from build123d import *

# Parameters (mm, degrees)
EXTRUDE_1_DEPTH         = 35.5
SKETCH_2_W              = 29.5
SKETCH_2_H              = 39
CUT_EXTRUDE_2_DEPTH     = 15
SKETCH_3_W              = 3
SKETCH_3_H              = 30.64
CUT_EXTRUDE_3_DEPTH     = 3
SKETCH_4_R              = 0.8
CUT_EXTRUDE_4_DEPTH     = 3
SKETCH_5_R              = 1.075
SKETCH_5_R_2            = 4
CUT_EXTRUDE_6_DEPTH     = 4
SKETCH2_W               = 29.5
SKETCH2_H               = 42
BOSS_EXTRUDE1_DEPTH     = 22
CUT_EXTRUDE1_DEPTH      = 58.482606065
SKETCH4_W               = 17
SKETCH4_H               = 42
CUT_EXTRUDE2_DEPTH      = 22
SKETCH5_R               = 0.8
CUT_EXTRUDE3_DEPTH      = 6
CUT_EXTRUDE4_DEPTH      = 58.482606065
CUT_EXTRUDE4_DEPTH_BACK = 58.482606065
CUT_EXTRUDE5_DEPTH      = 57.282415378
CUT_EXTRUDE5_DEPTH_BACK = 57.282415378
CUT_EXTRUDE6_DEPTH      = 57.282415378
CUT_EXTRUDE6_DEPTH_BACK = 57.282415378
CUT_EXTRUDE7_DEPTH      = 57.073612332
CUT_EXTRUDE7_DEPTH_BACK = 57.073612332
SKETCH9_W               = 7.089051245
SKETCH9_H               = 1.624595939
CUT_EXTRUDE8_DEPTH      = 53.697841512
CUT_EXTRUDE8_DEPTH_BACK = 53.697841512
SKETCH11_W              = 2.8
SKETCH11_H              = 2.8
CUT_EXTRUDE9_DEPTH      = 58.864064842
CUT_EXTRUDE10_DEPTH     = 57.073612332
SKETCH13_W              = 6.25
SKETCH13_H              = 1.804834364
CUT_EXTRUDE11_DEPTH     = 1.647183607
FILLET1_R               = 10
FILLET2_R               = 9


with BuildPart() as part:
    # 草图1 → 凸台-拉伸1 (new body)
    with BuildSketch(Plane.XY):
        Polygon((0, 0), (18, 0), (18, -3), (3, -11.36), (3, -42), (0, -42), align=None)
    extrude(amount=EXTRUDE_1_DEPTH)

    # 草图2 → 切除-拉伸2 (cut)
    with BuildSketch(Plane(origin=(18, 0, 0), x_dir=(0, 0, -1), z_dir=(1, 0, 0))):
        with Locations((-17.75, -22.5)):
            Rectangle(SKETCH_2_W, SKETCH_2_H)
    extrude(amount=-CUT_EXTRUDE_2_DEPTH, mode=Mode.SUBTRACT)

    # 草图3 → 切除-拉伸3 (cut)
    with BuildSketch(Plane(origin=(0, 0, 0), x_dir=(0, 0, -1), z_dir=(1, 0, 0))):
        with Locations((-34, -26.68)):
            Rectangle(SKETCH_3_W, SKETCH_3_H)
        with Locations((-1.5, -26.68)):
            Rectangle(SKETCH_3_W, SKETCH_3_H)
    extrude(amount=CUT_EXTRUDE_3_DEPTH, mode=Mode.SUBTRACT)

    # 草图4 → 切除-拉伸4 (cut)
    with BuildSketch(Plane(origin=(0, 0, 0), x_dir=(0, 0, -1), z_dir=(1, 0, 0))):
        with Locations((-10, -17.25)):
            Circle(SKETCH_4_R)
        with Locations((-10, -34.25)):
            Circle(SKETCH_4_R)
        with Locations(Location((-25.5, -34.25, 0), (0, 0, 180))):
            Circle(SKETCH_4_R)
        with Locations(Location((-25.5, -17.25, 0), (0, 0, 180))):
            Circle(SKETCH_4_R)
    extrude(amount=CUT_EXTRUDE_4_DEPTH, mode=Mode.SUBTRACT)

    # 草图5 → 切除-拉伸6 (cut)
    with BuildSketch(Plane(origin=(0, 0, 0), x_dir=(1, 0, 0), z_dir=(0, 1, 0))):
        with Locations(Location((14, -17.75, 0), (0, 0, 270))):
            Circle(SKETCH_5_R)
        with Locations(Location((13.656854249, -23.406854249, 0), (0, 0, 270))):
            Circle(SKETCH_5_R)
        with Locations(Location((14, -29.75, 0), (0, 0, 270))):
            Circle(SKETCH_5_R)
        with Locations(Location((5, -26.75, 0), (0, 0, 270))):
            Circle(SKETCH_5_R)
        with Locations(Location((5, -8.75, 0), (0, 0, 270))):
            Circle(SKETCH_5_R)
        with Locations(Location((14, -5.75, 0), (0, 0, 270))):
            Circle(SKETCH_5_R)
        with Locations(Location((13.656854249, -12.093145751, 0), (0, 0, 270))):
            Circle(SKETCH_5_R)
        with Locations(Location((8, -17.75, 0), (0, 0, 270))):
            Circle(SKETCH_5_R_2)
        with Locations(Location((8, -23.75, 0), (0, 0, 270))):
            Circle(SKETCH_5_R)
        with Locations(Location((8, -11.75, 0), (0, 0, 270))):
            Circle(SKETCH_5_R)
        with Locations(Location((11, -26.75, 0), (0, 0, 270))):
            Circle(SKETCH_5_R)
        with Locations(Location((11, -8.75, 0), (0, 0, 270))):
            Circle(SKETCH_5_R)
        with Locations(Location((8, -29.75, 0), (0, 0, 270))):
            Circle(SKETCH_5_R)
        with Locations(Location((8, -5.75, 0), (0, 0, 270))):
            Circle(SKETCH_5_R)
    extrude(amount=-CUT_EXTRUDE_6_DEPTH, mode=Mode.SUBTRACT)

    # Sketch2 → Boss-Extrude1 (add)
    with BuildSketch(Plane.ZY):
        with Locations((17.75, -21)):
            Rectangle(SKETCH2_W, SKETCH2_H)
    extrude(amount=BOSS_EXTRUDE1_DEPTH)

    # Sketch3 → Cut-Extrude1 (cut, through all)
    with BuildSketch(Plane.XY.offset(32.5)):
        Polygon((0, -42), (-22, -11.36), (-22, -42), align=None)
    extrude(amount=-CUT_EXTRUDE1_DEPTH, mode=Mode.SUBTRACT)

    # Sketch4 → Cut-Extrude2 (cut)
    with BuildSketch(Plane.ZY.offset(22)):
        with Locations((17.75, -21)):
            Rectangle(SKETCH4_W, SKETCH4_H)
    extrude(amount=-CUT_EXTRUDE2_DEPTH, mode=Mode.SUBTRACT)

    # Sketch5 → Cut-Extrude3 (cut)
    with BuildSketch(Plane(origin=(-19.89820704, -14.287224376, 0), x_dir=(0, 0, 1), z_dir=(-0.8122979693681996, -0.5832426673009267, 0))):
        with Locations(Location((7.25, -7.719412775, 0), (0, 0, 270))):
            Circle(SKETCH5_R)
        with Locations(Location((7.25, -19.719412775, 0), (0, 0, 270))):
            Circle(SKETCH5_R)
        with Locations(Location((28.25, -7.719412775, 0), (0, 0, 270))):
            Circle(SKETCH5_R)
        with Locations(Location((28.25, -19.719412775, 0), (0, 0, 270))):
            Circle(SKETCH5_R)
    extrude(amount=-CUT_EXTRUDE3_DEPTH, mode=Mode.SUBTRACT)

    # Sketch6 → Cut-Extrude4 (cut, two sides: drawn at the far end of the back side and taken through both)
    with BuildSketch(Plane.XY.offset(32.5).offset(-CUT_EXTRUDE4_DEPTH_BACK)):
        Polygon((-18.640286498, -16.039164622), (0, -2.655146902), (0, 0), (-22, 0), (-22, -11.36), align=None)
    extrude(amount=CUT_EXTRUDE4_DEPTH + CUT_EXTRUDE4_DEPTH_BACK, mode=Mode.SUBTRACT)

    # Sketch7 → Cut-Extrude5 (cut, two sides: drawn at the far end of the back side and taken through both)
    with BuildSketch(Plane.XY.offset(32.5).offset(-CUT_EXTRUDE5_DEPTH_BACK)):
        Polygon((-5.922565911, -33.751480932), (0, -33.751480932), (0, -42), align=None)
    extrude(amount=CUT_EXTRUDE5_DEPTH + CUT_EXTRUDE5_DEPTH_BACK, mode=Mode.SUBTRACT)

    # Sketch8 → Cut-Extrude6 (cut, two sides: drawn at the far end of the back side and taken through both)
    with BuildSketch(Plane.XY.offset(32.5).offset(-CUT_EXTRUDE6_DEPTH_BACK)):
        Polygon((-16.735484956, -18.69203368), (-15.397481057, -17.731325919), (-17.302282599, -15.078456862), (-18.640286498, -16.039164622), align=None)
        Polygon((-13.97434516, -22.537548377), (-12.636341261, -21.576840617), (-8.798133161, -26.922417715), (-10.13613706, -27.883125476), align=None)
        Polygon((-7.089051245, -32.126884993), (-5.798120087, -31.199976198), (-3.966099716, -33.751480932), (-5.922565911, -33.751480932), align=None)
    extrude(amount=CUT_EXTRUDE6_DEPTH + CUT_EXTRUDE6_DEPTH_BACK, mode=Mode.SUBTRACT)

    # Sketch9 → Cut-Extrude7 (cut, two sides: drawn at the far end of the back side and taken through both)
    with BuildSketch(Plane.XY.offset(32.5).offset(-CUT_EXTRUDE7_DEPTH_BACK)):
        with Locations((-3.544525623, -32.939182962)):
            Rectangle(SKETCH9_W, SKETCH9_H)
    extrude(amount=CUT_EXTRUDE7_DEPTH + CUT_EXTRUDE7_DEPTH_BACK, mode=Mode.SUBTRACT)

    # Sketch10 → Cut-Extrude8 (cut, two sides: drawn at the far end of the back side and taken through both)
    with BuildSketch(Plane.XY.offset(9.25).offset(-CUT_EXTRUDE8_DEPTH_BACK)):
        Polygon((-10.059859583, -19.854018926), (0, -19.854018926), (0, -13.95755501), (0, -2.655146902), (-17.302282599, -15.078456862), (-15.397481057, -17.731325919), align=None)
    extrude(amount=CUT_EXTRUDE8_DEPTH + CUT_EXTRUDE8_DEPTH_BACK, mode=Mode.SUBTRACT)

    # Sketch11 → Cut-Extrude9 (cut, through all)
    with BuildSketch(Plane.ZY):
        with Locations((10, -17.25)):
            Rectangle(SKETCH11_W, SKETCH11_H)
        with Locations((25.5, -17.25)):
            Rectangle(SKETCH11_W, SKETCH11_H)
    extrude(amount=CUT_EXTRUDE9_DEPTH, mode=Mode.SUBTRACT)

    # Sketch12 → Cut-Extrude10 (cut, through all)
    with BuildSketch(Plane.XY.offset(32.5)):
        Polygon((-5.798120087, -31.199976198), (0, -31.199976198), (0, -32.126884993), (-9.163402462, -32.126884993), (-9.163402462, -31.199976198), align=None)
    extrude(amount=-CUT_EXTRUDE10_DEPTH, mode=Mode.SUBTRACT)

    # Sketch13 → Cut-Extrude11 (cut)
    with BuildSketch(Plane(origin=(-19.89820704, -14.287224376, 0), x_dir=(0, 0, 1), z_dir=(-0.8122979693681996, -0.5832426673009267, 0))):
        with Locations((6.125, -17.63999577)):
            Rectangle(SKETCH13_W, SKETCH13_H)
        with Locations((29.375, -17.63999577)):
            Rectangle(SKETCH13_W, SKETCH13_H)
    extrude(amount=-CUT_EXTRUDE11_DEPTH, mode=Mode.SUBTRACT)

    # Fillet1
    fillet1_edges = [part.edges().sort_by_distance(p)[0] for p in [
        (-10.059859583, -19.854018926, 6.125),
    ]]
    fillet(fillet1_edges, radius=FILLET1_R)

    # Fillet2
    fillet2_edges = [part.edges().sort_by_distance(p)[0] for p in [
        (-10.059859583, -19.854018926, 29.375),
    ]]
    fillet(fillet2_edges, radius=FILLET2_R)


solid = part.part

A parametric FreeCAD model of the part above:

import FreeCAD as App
import Part
import Sketcher
from FreeCAD import Vector
Q = App.Units.Quantity


def edges_at(feature, points):
    """Names of the edges that pass closest to the given points."""
    edges = feature.Shape.Edges
    near = lambda p: min(range(len(edges)), key=lambda i: edges[i].distToShape(Part.Vertex(*p))[0])
    return sorted({f"Edge{near(p) + 1}" for p in points})


def add_polygon(sketch, points):
    """Adds a closed chain of lines whose ends are joined by coincident constraints."""
    first, n = sketch.GeometryCount, len(points)
    for a, b in zip(points, points[1:] + points[:1]):
        sketch.addGeometry(Part.LineSegment(App.Vector(*a, 0), App.Vector(*b, 0)), False)
    for i in range(n):
        sketch.addConstraint(Sketcher.Constraint("Coincident", first + i, 2, first + (i + 1) % n, 1))

doc = App.newDocument("Part")
body = doc.addObject("PartDesign::Body", "Body")

# Sketch on XY plane
sketch1 = body.newObject("Sketcher::SketchObject", "Sketch")
sketch1.AttachmentSupport = (doc.getObject("XY_Plane"), [""])
sketch1.MapMode = "FlatFace"
add_polygon(sketch1, [(18, 0), (0, 0), (0, -42), (3, -42), (3, -11.4), (18, -3)])  # lines 0-5
sketch1.addConstraint([
    Sketcher.Constraint("Horizontal", 0),
    Sketcher.Constraint("Vertical", 1),
    Sketcher.Constraint("Horizontal", 2),
    Sketcher.Constraint("Vertical", 3),
    Sketcher.Constraint("Vertical", 5),
    Sketcher.Constraint("Coincident", 0, 2, -1, 1),
    Sketcher.Constraint("Equal", 2, 5),
    Sketcher.Constraint("DistanceX", 0, 2, 0, 1, Q("18 mm")),
    Sketcher.Constraint("DistanceX", 2, 1, 2, 2, Q("3 mm")),
    Sketcher.Constraint("DistanceY", 1, 2, 1, 1, Q("42 mm")),
    Sketcher.Constraint("DistanceY", 3, 1, 3, 2, Q("30.64 mm")),
])
pad1 = body.newObject("PartDesign::Pad", "Pad")
pad1.Profile = sketch1
pad1.Length = 35.5

# Sketch on YZ plane
sketch2 = body.newObject("Sketcher::SketchObject", "Sketch001")
sketch2.AttachmentSupport = (doc.getObject("YZ_Plane"), [""])
sketch2.MapMode = "FlatFace"
sketch2.AttachmentOffset = App.Placement(Vector(0, 0, 18), App.Rotation())
add_polygon(sketch2, [(-3, 32), (-42, 32), (-42, 3), (-3, 3)])  # lines 0-3
sketch2.addConstraint([
    Sketcher.Constraint("Horizontal", 0),
    Sketcher.Constraint("Vertical", 1),
    Sketcher.Constraint("Horizontal", 2),
    Sketcher.Constraint("Vertical", 3),
    Sketcher.Constraint("DistanceX", 0, 2, 0, 1, Q("39 mm")),
    Sketcher.Constraint("DistanceY", 1, 2, 1, 1, Q("29.5 mm")),
    Sketcher.Constraint("DistanceX", 0, 2, -1, 1, Q("42 mm")),
    Sketcher.Constraint("DistanceY", -1, 1, 1, 2, Q("3 mm")),
])
pocket1 = body.newObject("PartDesign::Pocket", "Pocket")
pocket1.Profile = sketch2
pocket1.Length = 15

# Sketch on YZ plane
sketch3 = body.newObject("Sketcher::SketchObject", "Sketch002")
sketch3.AttachmentSupport = (doc.getObject("YZ_Plane"), [""])
sketch3.MapMode = "FlatFace"
add_polygon(sketch3, [(-11.4, 35.5), (-42, 35.5), (-42, 32.5), (-11.4, 32.5)])  # lines 0-3
add_polygon(sketch3, [(-11.4, 3), (-42, 3), (-42, 0), (-11.4, 0)])  # lines 4-7
sketch3.addConstraint([
    Sketcher.Constraint("Horizontal", 0),
    Sketcher.Constraint("Vertical", 1),
    Sketcher.Constraint("Horizontal", 2),
    Sketcher.Constraint("Vertical", 3),
    Sketcher.Constraint("Horizontal", 4),
    Sketcher.Constraint("Vertical", 5),
    Sketcher.Constraint("Horizontal", 6),
    Sketcher.Constraint("Vertical", 7),
    Sketcher.Constraint("PointOnObject", 5, 2, -1),
    Sketcher.Constraint("Vertical", 1, 2, 4, 2),
    Sketcher.Constraint("Vertical", 3, 2, 6, 2),
    Sketcher.Constraint("Equal", 3, 5),
    Sketcher.Constraint("DistanceY", 1, 2, 1, 1, Q("3 mm")),
    Sketcher.Constraint("DistanceX", 0, 2, -1, 1, Q("42 mm")),
    Sketcher.Constraint("DistanceX", 0, 2, 0, 1, Q("30.64 mm")),
    Sketcher.Constraint("DistanceY", -1, 1, 0, 2, Q("35.5 mm")),
])
pocket2 = body.newObject("PartDesign::Pocket", "Pocket001")
pocket2.Profile = sketch3
pocket2.Length = 3
pocket2.Reversed = True

# Sketch on YZ plane
sketch4 = body.newObject("Sketcher::SketchObject", "Sketch003")
sketch4.AttachmentSupport = (doc.getObject("YZ_Plane"), [""])
sketch4.MapMode = "FlatFace"
sketch4.addGeometry([
    Part.Circle(Vector(-17.2, 10, 0), Vector(0, 0, 1), 0.8),
    Part.Circle(Vector(-34.2, 10, 0), Vector(0, 0, 1), 0.8),
    Part.Circle(Vector(-34.2, 25.5, 0), Vector(0, 0, 1), 0.8),
    Part.Circle(Vector(-17.2, 25.5, 0), Vector(0, 0, 1), 0.8),
], False)
sketch4.addConstraint([
    Sketcher.Constraint("Equal", 0, 1),
    Sketcher.Constraint("Equal", 1, 2),
    Sketcher.Constraint("Equal", 2, 3),
    Sketcher.Constraint("Horizontal", 0, 3, 1, 3),
    Sketcher.Constraint("Horizontal", 2, 3, 3, 3),
    Sketcher.Constraint("Vertical", 1, 3, 2, 3),
    Sketcher.Constraint("Vertical", 0, 3, 3, 3),
    Sketcher.Constraint("Diameter", 0, Q("1.6 mm")),
    Sketcher.Constraint("DistanceY", -1, 1, 0, 3, Q("10 mm")),
    Sketcher.Constraint("DistanceX", 1, 3, 0, 3, Q("17 mm")),
    Sketcher.Constraint("DistanceY", -1, 1, 2, 3, Q("25.5 mm")),
    Sketcher.Constraint("DistanceX", 0, 3, -1, 1, Q("17.25 mm")),
])
pocket3 = body.newObject("PartDesign::Pocket", "Pocket002")
pocket3.Profile = sketch4
pocket3.Length = 3
pocket3.Reversed = True

# Sketch on XZ plane
sketch5 = body.newObject("Sketcher::SketchObject", "Sketch004")
sketch5.AttachmentSupport = (doc.getObject("XZ_Plane"), [""])
sketch5.MapMode = "FlatFace"
sketch5.addGeometry([
    Part.Circle(Vector(14, 17.8, 0), Vector(0, 0, 1), 1.1),  # 0
    Part.Circle(Vector(13.7, 23.4, 0), Vector(0, 0, 1), 1.1),  # 1
    Part.Circle(Vector(14, 29.8, 0), Vector(0, 0, 1), 1.1),  # 2
    Part.Circle(Vector(5, 26.8, 0), Vector(0, 0, 1), 1.1),  # 3
    Part.Circle(Vector(5, 8.8, 0), Vector(0, 0, 1), 1.1),  # 4
    Part.Circle(Vector(14, 5.8, 0), Vector(0, 0, 1), 1.1),  # 5
    Part.Circle(Vector(13.7, 12.1, 0), Vector(0, 0, 1), 1.1),  # 6
    Part.Circle(Vector(8, 17.8, 0), Vector(0, 0, 1), 4),  # 7
    Part.Circle(Vector(8, 23.8, 0), Vector(0, 0, 1), 1.1),  # 8
    Part.Circle(Vector(8, 11.8, 0), Vector(0, 0, 1), 1.1),  # 9
    Part.Circle(Vector(11, 26.8, 0), Vector(0, 0, 1), 1.1),  # 10
    Part.Circle(Vector(11, 8.8, 0), Vector(0, 0, 1), 1.1),  # 11
    Part.Circle(Vector(8, 29.8, 0), Vector(0, 0, 1), 1.1),  # 12
    Part.Circle(Vector(8, 5.8, 0), Vector(0, 0, 1), 1.1),  # 13
], False)
sketch5.addConstraint([
    Sketcher.Constraint("Equal", 0, 1),
    Sketcher.Constraint("Equal", 1, 2),
    Sketcher.Constraint("Equal", 2, 3),
    Sketcher.Constraint("Equal", 3, 4),
    Sketcher.Constraint("Equal", 4, 5),
    Sketcher.Constraint("Equal", 5, 6),
    Sketcher.Constraint("Equal", 6, 8),
    Sketcher.Constraint("Equal", 8, 9),
    Sketcher.Constraint("Equal", 9, 10),
    Sketcher.Constraint("Equal", 10, 11),
    Sketcher.Constraint("Equal", 11, 12),
    Sketcher.Constraint("Equal", 12, 13),
    Sketcher.Constraint("Horizontal", 0, 3, 7, 3),
    Sketcher.Constraint("Horizontal", 3, 3, 10, 3),
    Sketcher.Constraint("Horizontal", 4, 3, 11, 3),
    Sketcher.Constraint("Horizontal", 2, 3, 12, 3),
    Sketcher.Constraint("Horizontal", 5, 3, 13, 3),
    Sketcher.Constraint("Vertical", 0, 3, 2, 3),
    Sketcher.Constraint("Vertical", 3, 3, 4, 3),
    Sketcher.Constraint("Vertical", 2, 3, 5, 3),
    Sketcher.Constraint("Vertical", 1, 3, 6, 3),
    Sketcher.Constraint("Vertical", 7, 3, 8, 3),
    Sketcher.Constraint("Vertical", 8, 3, 9, 3),
    Sketcher.Constraint("Vertical", 10, 3, 11, 3),
    Sketcher.Constraint("Vertical", 9, 3, 12, 3),
    Sketcher.Constraint("Vertical", 12, 3, 13, 3),
    Sketcher.Constraint("Diameter", 7, Q("8 mm")),
    Sketcher.Constraint("Diameter", 0, Q("2.15 mm")),
    Sketcher.Constraint("DistanceX", -1, 1, 0, 3, Q("14 mm")),
    Sketcher.Constraint("DistanceX", -1, 1, 3, 3, Q("5 mm")),
    Sketcher.Constraint("DistanceX", -1, 1, 7, 3, Q("8 mm")),
    Sketcher.Constraint("DistanceX", -1, 1, 10, 3, Q("11 mm")),
    Sketcher.Constraint("DistanceY", 0, 3, 2, 3, Q("12 mm")),
    Sketcher.Constraint("DistanceY", 3, 3, 2, 3, Q("3 mm")),
    Sketcher.Constraint("DistanceY", 4, 3, 0, 3, Q("9 mm")),
    Sketcher.Constraint("DistanceY", 5, 3, 4, 3, Q("3 mm")),
    Sketcher.Constraint("DistanceY", 8, 3, 3, 3, Q("3 mm")),
    Sketcher.Constraint("DistanceY", 4, 3, 9, 3, Q("3 mm")),
    Sketcher.Constraint("DistanceY", -1, 1, 0, 3, Q("17.75 mm")),
    Sketcher.Constraint("DistanceY", 6, 3, 1, 3, Q("11.313708 mm")),
    Sketcher.Constraint("DistanceX", -1, 1, 1, 3, Q("13.656854 mm")),
    Sketcher.Constraint("DistanceY", -1, 1, 1, 3, Q("23.406854 mm")),
])
pocket4 = body.newObject("PartDesign::Pocket", "Pocket003")
pocket4.Profile = sketch5
pocket4.Length = 4
pocket4.Reversed = True

# Sketch on YZ plane
sketch6 = body.newObject("Sketcher::SketchObject", "Sketch005")
sketch6.AttachmentSupport = (doc.getObject("YZ_Plane"), [""])
sketch6.MapMode = "FlatFace"
add_polygon(sketch6, [(0, 3), (-42, 3), (-42, 32), (0, 32)])  # lines 0-3
sketch6.addConstraint([
    Sketcher.Constraint("Horizontal", 0),
    Sketcher.Constraint("Vertical", 1),
    Sketcher.Constraint("Horizontal", 2),
    Sketcher.Constraint("Vertical", 3),
    Sketcher.Constraint("PointOnObject", 2, 2, -2),
    Sketcher.Constraint("DistanceX", 0, 2, 0, 1, Q("42 mm")),
    Sketcher.Constraint("DistanceY", 1, 1, 1, 2, Q("29.5 mm")),
    Sketcher.Constraint("DistanceY", -1, 1, 0, 2, Q("3 mm")),
])
pad2 = body.newObject("PartDesign::Pad", "Pad001")
pad2.Profile = sketch6
pad2.Length = 22
pad2.Reversed = True

# Sketch on XY plane
sketch7 = body.newObject("Sketcher::SketchObject", "Sketch006")
sketch7.AttachmentSupport = (doc.getObject("XY_Plane"), [""])
sketch7.MapMode = "FlatFace"
sketch7.AttachmentOffset = App.Placement(Vector(0, 0, 32.5), App.Rotation())
add_polygon(sketch7, [(0, -42), (-22, -11), (-22, -42)])  # lines 0-2
sketch7.addConstraint([
    Sketcher.Constraint("Vertical", 1),
    Sketcher.Constraint("Horizontal", 2),
    Sketcher.Constraint("PointOnObject", 2, 2, -2),
    Sketcher.Constraint("DistanceX", 2, 1, 2, 2, Q("22 mm")),
    Sketcher.Constraint("DistanceY", 1, 2, -1, 1, Q("42 mm")),
    Sketcher.Constraint("DistanceY", 1, 2, 1, 1, Q("30.64 mm")),
])
pocket5 = body.newObject("PartDesign::Pocket", "Pocket004")
pocket5.Profile = sketch7
pocket5.Type = "ThroughAll"

# Sketch on YZ plane
sketch8 = body.newObject("Sketcher::SketchObject", "Sketch007")
sketch8.AttachmentSupport = (doc.getObject("YZ_Plane"), [""])
sketch8.MapMode = "FlatFace"
sketch8.AttachmentOffset = App.Placement(Vector(0, 0, -22), App.Rotation())
add_polygon(sketch8, [(0, 9), (-42, 9), (-42, 26), (0, 26)])  # lines 0-3
sketch8.addConstraint([
    Sketcher.Constraint("Horizontal", 0),
    Sketcher.Constraint("Vertical", 1),
    Sketcher.Constraint("Horizontal", 2),
    Sketcher.Constraint("Vertical", 3),
    Sketcher.Constraint("PointOnObject", 2, 2, -2),
    Sketcher.Constraint("DistanceX", 0, 2, 0, 1, Q("42 mm")),
    Sketcher.Constraint("DistanceY", 1, 1, 1, 2, Q("17 mm")),
    Sketcher.Constraint("DistanceY", -1, 1, 0, 2, Q("9.25 mm")),
])
pocket6 = body.newObject("PartDesign::Pocket", "Pocket005")
pocket6.Profile = sketch8
pocket6.Length = 22
pocket6.Reversed = True

# Sketch on an angled plane
sketch9 = body.newObject("Sketcher::SketchObject", "Sketch008")
sketch9.Placement = App.Placement(Vector(-19.898207, -14.287224, 0), App.Rotation(Vector(0, 0, 1), Vector(-0.583242667, 0.812297969, 0), Vector(-0.812297969, -0.583242667, 0), "ZXY"))
sketch9.addGeometry([
    Part.Circle(Vector(7.2, -7.7, 0), Vector(0, 0, 1), 0.8),
    Part.Circle(Vector(7.2, -19.7, 0), Vector(0, 0, 1), 0.8),
    Part.Circle(Vector(28.2, -7.7, 0), Vector(0, 0, 1), 0.8),
    Part.Circle(Vector(28.2, -19.7, 0), Vector(0, 0, 1), 0.8),
], False)
sketch9.addConstraint([
    Sketcher.Constraint("Equal", 0, 1),
    Sketcher.Constraint("Equal", 1, 2),
    Sketcher.Constraint("Equal", 2, 3),
    Sketcher.Constraint("Horizontal", 0, 3, 2, 3),
    Sketcher.Constraint("Horizontal", 1, 3, 3, 3),
    Sketcher.Constraint("Vertical", 0, 3, 1, 3),
    Sketcher.Constraint("Vertical", 2, 3, 3, 3),
    Sketcher.Constraint("Diameter", 0, Q("1.6 mm")),
    Sketcher.Constraint("DistanceY", 1, 3, 0, 3, Q("12 mm")),
    Sketcher.Constraint("DistanceX", 0, 3, 2, 3, Q("21 mm")),
    Sketcher.Constraint("DistanceX", -1, 1, 0, 3, Q("7.25 mm")),
    Sketcher.Constraint("DistanceY", 0, 3, -1, 1, Q("7.719413 mm")),
])
pocket7 = body.newObject("PartDesign::Pocket", "Pocket006")
pocket7.Profile = sketch9
pocket7.Length = 6

# Sketch on XY plane
sketch10 = body.newObject("Sketcher::SketchObject", "Sketch009")
sketch10.AttachmentSupport = (doc.getObject("XY_Plane"), [""])
sketch10.MapMode = "FlatFace"
sketch10.AttachmentOffset = App.Placement(Vector(0, 0, 32.5), App.Rotation())
add_polygon(sketch10, [(-18.6, -16), (0, -2.7), (0, 0), (-22, 0), (-22, -11.4)])  # lines 0-4
sketch10.addConstraint([
    Sketcher.Constraint("Vertical", 1),
    Sketcher.Constraint("Horizontal", 2),
    Sketcher.Constraint("Vertical", 3),
    Sketcher.Constraint("Coincident", 1, 2, -1, 1),
    Sketcher.Constraint("Perpendicular", 0, 4),
    Sketcher.Constraint("DistanceX", 2, 2, 2, 1, Q("22 mm")),
    Sketcher.Constraint("DistanceY", 3, 2, 3, 1, Q("11.36 mm")),
    Sketcher.Constraint("DistanceY", 1, 1, 1, 2, Q("2.655147 mm")),
    Sketcher.Constraint("Distance", 0, Q("22.947597 mm")),
])
pocket8 = body.newObject("PartDesign::Pocket", "Pocket007")
pocket8.Profile = sketch10
pocket8.Type = "ThroughAll"
pocket8.Midplane = True

# Sketch on XY plane
sketch11 = body.newObject("Sketcher::SketchObject", "Sketch010")
sketch11.AttachmentSupport = (doc.getObject("XY_Plane"), [""])
sketch11.MapMode = "FlatFace"
sketch11.AttachmentOffset = App.Placement(Vector(0, 0, 32.5), App.Rotation())
add_polygon(sketch11, [(0, -34), (-6, -34), (0, -42)])  # lines 0-2
sketch11.addConstraint([
    Sketcher.Constraint("Horizontal", 0),
    Sketcher.Constraint("Vertical", 2),
    Sketcher.Constraint("PointOnObject", 1, 2, -2),
    Sketcher.Constraint("DistanceY", 1, 2, -1, 1, Q("42 mm")),
    Sketcher.Constraint("DistanceY", 2, 1, 2, 2, Q("8.248519 mm")),
    Sketcher.Constraint("Distance", 1, Q("10.154548 mm")),
])
pocket9 = body.newObject("PartDesign::Pocket", "Pocket008")
pocket9.Profile = sketch11
pocket9.Type = "ThroughAll"
pocket9.Midplane = True

# Sketch on XY plane
sketch12 = body.newObject("Sketcher::SketchObject", "Sketch011")
sketch12.AttachmentSupport = (doc.getObject("XY_Plane"), [""])
sketch12.MapMode = "FlatFace"
sketch12.AttachmentOffset = App.Placement(Vector(0, 0, 32.5), App.Rotation())
add_polygon(sketch12, [(-16.7, -18.7), (-15.4, -17.7), (-17.3, -15.1), (-18.6, -16)])  # lines 0-3
add_polygon(sketch12, [(-12.6, -21.6), (-14, -22.5), (-10.1, -27.9), (-8.8, -26.9)])  # lines 4-7
add_polygon(sketch12, [(-5.8, -31.2), (-7.1, -32.1), (-5.9, -33.8), (-4, -33.8)])  # lines 8-11
sketch12.addConstraint([
    Sketcher.Constraint("Horizontal", 10),
    Sketcher.Constraint("Perpendicular", 0, 1),
    Sketcher.Constraint("Perpendicular", 1, 2),
    Sketcher.Constraint("Perpendicular", 2, 3),
    Sketcher.Constraint("Perpendicular", 3, 4),
    Sketcher.Constraint("Perpendicular", 4, 5),
    Sketcher.Constraint("Perpendicular", 5, 6),
    Sketcher.Constraint("Perpendicular", 6, 7),
    Sketcher.Constraint("Perpendicular", 7, 8),
    Sketcher.Constraint("Perpendicular", 8, 9),
    Sketcher.Constraint("Parallel", 9, 11),
    Sketcher.Constraint("Equal", 2, 4),
    Sketcher.Constraint("Distance", 9, Q("2 mm")),
    Sketcher.Constraint("DistanceX", 10, 2, -1, 1, Q("3.9661 mm")),
    Sketcher.Constraint("DistanceX", 1, 2, 0, 2, Q("1.904802 mm")),
    Sketcher.Constraint("DistanceY", 5, 2, 0, 2, Q("10.1518 mm")),
    Sketcher.Constraint("Distance", 1, Q("3.265882 mm")),
    Sketcher.Constraint("Distance", 5, Q("6.580808 mm")),
    Sketcher.Constraint("DistanceX", 10, 1, 10, 2, Q("1.956466 mm")),
    Sketcher.Constraint("DistanceX", 0, 2, -1, 1, Q("15.397481 mm")),
    Sketcher.Constraint("DistanceY", 4, 2, -1, 1, Q("22.537548 mm")),
    Sketcher.Constraint("DistanceX", 7, 2, -1, 1, Q("12.636341 mm")),
    Sketcher.Constraint("DistanceY", 7, 2, -1, 1, Q("21.576841 mm")),
    Sketcher.Constraint("DistanceY", 9, 2, -1, 1, Q("33.751481 mm")),
])
pocket10 = body.newObject("PartDesign::Pocket", "Pocket009")
pocket10.Profile = sketch12
pocket10.Type = "ThroughAll"
pocket10.Midplane = True

# Sketch on XY plane
sketch13 = body.newObject("Sketcher::SketchObject", "Sketch012")
sketch13.AttachmentSupport = (doc.getObject("XY_Plane"), [""])
sketch13.MapMode = "FlatFace"
sketch13.AttachmentOffset = App.Placement(Vector(0, 0, 32.5), App.Rotation())
add_polygon(sketch13, [(-7.1, -32.1), (-7.1, -33.8), (0, -33.8), (0, -32.1)])  # lines 0-3
sketch13.addConstraint([
    Sketcher.Constraint("Vertical", 0),
    Sketcher.Constraint("Horizontal", 1),
    Sketcher.Constraint("Vertical", 2),
    Sketcher.Constraint("Horizontal", 3),
    Sketcher.Constraint("PointOnObject", 1, 2, -2),
    Sketcher.Constraint("DistanceX", 1, 1, 1, 2, Q("7.089051 mm")),
    Sketcher.Constraint("DistanceY", 0, 2, 0, 1, Q("1.624596 mm")),
    Sketcher.Constraint("DistanceY", 0, 2, -1, 1, Q("33.751481 mm")),
])
pocket11 = body.newObject("PartDesign::Pocket", "Pocket010")
pocket11.Profile = sketch13
pocket11.Type = "ThroughAll"
pocket11.Midplane = True

# Sketch on XY plane
sketch14 = body.newObject("Sketcher::SketchObject", "Sketch013")
sketch14.AttachmentSupport = (doc.getObject("XY_Plane"), [""])
sketch14.MapMode = "FlatFace"
sketch14.AttachmentOffset = App.Placement(Vector(0, 0, 9.25), App.Rotation())
add_polygon(sketch14, [(-10.1, -19.9), (0, -19.9), (0, -2.7), (-17.3, -15.1), (-15.4, -17.7)])  # lines 0-4
sketch14.addConstraint([
    Sketcher.Constraint("Horizontal", 0),
    Sketcher.Constraint("Vertical", 1),
    Sketcher.Constraint("PointOnObject", 0, 2, -2),
    Sketcher.Constraint("Perpendicular", 2, 3),
    Sketcher.Constraint("DistanceX", 0, 1, 0, 2, Q("10.05986 mm")),
    Sketcher.Constraint("DistanceX", 2, 2, 3, 2, Q("1.904802 mm")),
    Sketcher.Constraint("Distance", 3, Q("3.265882 mm")),
    Sketcher.Constraint("DistanceY", 1, 1, 1, 2, Q("17.198872 mm")),
    Sketcher.Constraint("DistanceY", 0, 2, -1, 1, Q("19.854019 mm")),
    Sketcher.Constraint("DistanceX", 3, 2, -1, 1, Q("15.397481 mm")),
])
pocket12 = body.newObject("PartDesign::Pocket", "Pocket011")
pocket12.Profile = sketch14
pocket12.Type = "ThroughAll"
pocket12.Midplane = True

# Sketch on YZ plane
sketch15 = body.newObject("Sketcher::SketchObject", "Sketch014")
sketch15.AttachmentSupport = (doc.getObject("YZ_Plane"), [""])
sketch15.MapMode = "FlatFace"
add_polygon(sketch15, [(-15.8, 8.6), (-18.6, 8.6), (-18.6, 11.4), (-15.8, 11.4)])  # lines 0-3
add_polygon(sketch15, [(-15.8, 24.1), (-18.6, 24.1), (-18.6, 26.9), (-15.8, 26.9)])  # lines 4-7
sketch15.addConstraint([
    Sketcher.Constraint("Horizontal", 0),
    Sketcher.Constraint("Vertical", 1),
    Sketcher.Constraint("Horizontal", 2),
    Sketcher.Constraint("Vertical", 3),
    Sketcher.Constraint("Horizontal", 4),
    Sketcher.Constraint("Vertical", 5),
    Sketcher.Constraint("Horizontal", 6),
    Sketcher.Constraint("Vertical", 7),
    Sketcher.Constraint("Vertical", 1, 2, 4, 2),
    Sketcher.Constraint("Vertical", 3, 2, 6, 2),
    Sketcher.Constraint("Equal", 6, 1),
    Sketcher.Constraint("Equal", 3, 5),
    Sketcher.Constraint("DistanceX", 0, 2, 0, 1, Q("2.8 mm")),
    Sketcher.Constraint("DistanceY", -1, 1, 0, 2, Q("8.6 mm")),
    Sketcher.Constraint("DistanceY", -1, 1, 4, 2, Q("24.1 mm")),
    Sketcher.Constraint("DistanceX", 0, 2, -1, 1, Q("18.65 mm")),
])
pocket13 = body.newObject("PartDesign::Pocket", "Pocket012")
pocket13.Profile = sketch15
pocket13.Type = "ThroughAll"

# Sketch on XY plane
sketch16 = body.newObject("Sketcher::SketchObject", "Sketch015")
sketch16.AttachmentSupport = (doc.getObject("XY_Plane"), [""])
sketch16.MapMode = "FlatFace"
sketch16.AttachmentOffset = App.Placement(Vector(0, 0, 32.5), App.Rotation())
add_polygon(sketch16, [(0, -31.2), (-9.2, -31.2), (-9.2, -32.1), (0, -32.1)])  # lines 0-3
sketch16.addConstraint([
    Sketcher.Constraint("Horizontal", 0),
    Sketcher.Constraint("Vertical", 1),
    Sketcher.Constraint("Horizontal", 2),
    Sketcher.Constraint("Vertical", 3),
    Sketcher.Constraint("PointOnObject", 2, 2, -2),
    Sketcher.Constraint("DistanceY", 1, 2, 1, 1, Q("0.926909 mm")),
    Sketcher.Constraint("DistanceX", 0, 2, 0, 1, Q("9.163402 mm")),
    Sketcher.Constraint("DistanceY", 0, 2, -1, 1, Q("31.199976 mm")),
])
pocket14 = body.newObject("PartDesign::Pocket", "Pocket013")
pocket14.Profile = sketch16
pocket14.Type = "ThroughAll"

# Sketch on an angled plane
sketch17 = body.newObject("Sketcher::SketchObject", "Sketch016")
sketch17.Placement = App.Placement(Vector(-19.898207, -14.287224, 0), App.Rotation(Vector(0, 0, 1), Vector(-0.583242667, 0.812297969, 0), Vector(-0.812297969, -0.583242667, 0), "ZXY"))
add_polygon(sketch17, [(3, -16.7), (3, -18.5), (9.2, -18.5), (9.2, -16.7)])  # lines 0-3
add_polygon(sketch17, [(26.2, -16.7), (26.2, -18.5), (32.5, -18.5), (32.5, -16.7)])  # lines 4-7
sketch17.addConstraint([
    Sketcher.Constraint("Vertical", 0),
    Sketcher.Constraint("Horizontal", 1),
    Sketcher.Constraint("Vertical", 2),
    Sketcher.Constraint("Horizontal", 3),
    Sketcher.Constraint("Vertical", 4),
    Sketcher.Constraint("Horizontal", 5),
    Sketcher.Constraint("Vertical", 6),
    Sketcher.Constraint("Horizontal", 7),
    Sketcher.Constraint("Horizontal", 1, 2, 4, 2),
    Sketcher.Constraint("Horizontal", 3, 2, 6, 2),
    Sketcher.Constraint("Equal", 3, 5),
    Sketcher.Constraint("DistanceX", -1, 1, 0, 2, Q("3 mm")),
    Sketcher.Constraint("DistanceX", 1, 2, 4, 2, Q("17 mm")),
    Sketcher.Constraint("DistanceX", 1, 1, 1, 2, Q("6.25 mm")),
    Sketcher.Constraint("DistanceY", 0, 2, 0, 1, Q("1.804834 mm")),
    Sketcher.Constraint("DistanceY", 2, 2, -1, 1, Q("16.737579 mm")),
])
pocket15 = body.newObject("PartDesign::Pocket", "Pocket014")
pocket15.Profile = sketch17
pocket15.Length = 1.647184
doc.recompute()

fillet = body.newObject("PartDesign::Fillet", "Fillet")
fillet.Base = (pocket15, edges_at(pocket15, [(-10.06, -19.854, 6.125)]))
fillet.Radius = 10
doc.recompute()

fillet2 = body.newObject("PartDesign::Fillet", "Fillet001")
fillet2.Base = (fillet, edges_at(fillet, [(-10.06, -19.854, 29.375)]))
fillet2.Radius = 9

doc.recompute()
